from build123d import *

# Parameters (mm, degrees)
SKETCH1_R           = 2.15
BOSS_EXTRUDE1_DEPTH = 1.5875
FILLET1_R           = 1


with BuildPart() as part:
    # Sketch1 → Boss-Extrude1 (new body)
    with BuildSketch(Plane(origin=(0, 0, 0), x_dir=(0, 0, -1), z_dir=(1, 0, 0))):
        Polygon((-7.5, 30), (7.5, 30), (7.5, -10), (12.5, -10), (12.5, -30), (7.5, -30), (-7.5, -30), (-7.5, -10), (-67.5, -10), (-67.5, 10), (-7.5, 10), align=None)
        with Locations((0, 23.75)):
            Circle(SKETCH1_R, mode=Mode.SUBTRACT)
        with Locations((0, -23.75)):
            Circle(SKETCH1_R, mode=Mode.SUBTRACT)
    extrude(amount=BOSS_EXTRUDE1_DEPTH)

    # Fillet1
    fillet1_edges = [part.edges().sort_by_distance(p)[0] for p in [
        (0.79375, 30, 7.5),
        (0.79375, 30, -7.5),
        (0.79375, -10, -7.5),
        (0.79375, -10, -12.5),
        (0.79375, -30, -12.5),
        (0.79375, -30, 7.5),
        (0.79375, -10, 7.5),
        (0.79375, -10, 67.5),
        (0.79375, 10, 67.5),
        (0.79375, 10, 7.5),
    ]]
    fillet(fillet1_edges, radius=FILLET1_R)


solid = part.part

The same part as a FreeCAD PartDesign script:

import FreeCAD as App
import Part
import Sketcher

V = App.Vector


def edges_at(feature, points):
    """Names of the edges that pass closest to the given points."""
    edges = feature.Shape.Edges
    near = lambda p: min(range(len(edges)), key=lambda i: edges[i].distToShape(Part.Vertex(*p))[0])
    return sorted({f"Edge{near(p) + 1}" for p in points})

doc = App.newDocument("Part")
body = doc.addObject("PartDesign::Body", "Body")

# Sketch on YZ plane
sketch1 = body.newObject("Sketcher::SketchObject", "Sketch")
sketch1.AttachmentSupport = (doc.getObject("YZ_Plane"), [""])
sketch1.MapMode = "FlatFace"
sketch1.addGeometry(Part.LineSegment(V(30, -7.5, 0), V(30, 7.5, 0)), False)
sketch1.addGeometry(Part.LineSegment(V(30, 7.5, 0), V(10, 7.5, 0)), False)
sketch1.addGeometry(Part.LineSegment(V(10, 7.5, 0), V(10, 67.5, 0)), False)
sketch1.addGeometry(Part.LineSegment(V(10, 67.5, 0), V(-10, 67.5, 0)), False)
sketch1.addGeometry(Part.LineSegment(V(-10, 67.5, 0), V(-10, 7.5, 0)), False)
sketch1.addGeometry(Part.LineSegment(V(-10, 7.5, 0), V(-30, 7.5, 0)), False)
sketch1.addGeometry(Part.LineSegment(V(-30, 7.5, 0), V(-30, -12.5, 0)), False)
sketch1.addGeometry(Part.LineSegment(V(-30, -12.5, 0), V(-10, -12.5, 0)), False)
sketch1.addGeometry(Part.LineSegment(V(-10, -12.5, 0), V(-10, -7.5, 0)), False)
sketch1.addGeometry(Part.LineSegment(V(-10, -7.5, 0), V(30, -7.5, 0)), False)
sketch1.addGeometry(Part.Circle(V(-23.75, 0, 0), V(0, 0, 1), 2.15), False)
sketch1.addGeometry(Part.Circle(V(23.75, 0, 0), V(0, 0, 1), 2.15), False)
sketch1.addConstraint(Sketcher.Constraint("Coincident", 0, 2, 1, 1))
sketch1.addConstraint(Sketcher.Constraint("Coincident", 1, 2, 2, 1))
sketch1.addConstraint(Sketcher.Constraint("Coincident", 2, 2, 3, 1))
sketch1.addConstraint(Sketcher.Constraint("Coincident", 3, 2, 4, 1))
sketch1.addConstraint(Sketcher.Constraint("Coincident", 4, 2, 5, 1))
sketch1.addConstraint(Sketcher.Constraint("Coincident", 5, 2, 6, 1))
sketch1.addConstraint(Sketcher.Constraint("Coincident", 6, 2, 7, 1))
sketch1.addConstraint(Sketcher.Constraint("Coincident", 7, 2, 8, 1))
sketch1.addConstraint(Sketcher.Constraint("Coincident", 8, 2, 9, 1))
sketch1.addConstraint(Sketcher.Constraint("Coincident", 9, 2, 0, 1))
sketch1.addConstraint(Sketcher.Constraint("Vertical", 0))
sketch1.addConstraint(Sketcher.Constraint("Horizontal", 1))
sketch1.addConstraint(Sketcher.Constraint("Vertical", 2))
sketch1.addConstraint(Sketcher.Constraint("Horizontal", 3))
sketch1.addConstraint(Sketcher.Constraint("Vertical", 4))
sketch1.addConstraint(Sketcher.Constraint("Horizontal", 5))
sketch1.addConstraint(Sketcher.Constraint("Vertical", 6))
sketch1.addConstraint(Sketcher.Constraint("Horizontal", 7))
sketch1.addConstraint(Sketcher.Constraint("Vertical", 8))
sketch1.addConstraint(Sketcher.Constraint("Horizontal", 9))
sketch1.addConstraint(Sketcher.Constraint("Equal", 10, 11))
sketch1.addConstraint(Sketcher.Constraint("Symmetric", 10, 3, 11, 3, -1, 1))
sketch1.addConstraint(Sketcher.Constraint("Symmetric", 1, 2, 8, 2, -1, 1))
sketch1.addConstraint(Sketcher.Constraint("Symmetric", 5, 2, 9, 2, -1, 1))
sketch1.addConstraint(Sketcher.Constraint("PointOnObject", 10, 3, -1))
sketch1.addConstraint(Sketcher.Constraint("Vertical", 4, 2, 7, 2))
sketch1.addConstraint(Sketcher.Constraint("Equal", 1, 3))
sketch1.addConstraint(Sketcher.Constraint("Equal", 7, 6))
sketch1.addConstraint(Sketcher.Constraint("Diameter", 10, 4.3))
sketch1.addConstraint(Sketcher.Constraint("DistanceX", 1, 2, 1, 1, 20.0))
sketch1.addConstraint(Sketcher.Constraint("DistanceY", 0, 1, 0, 2, 15.0))
sketch1.addConstraint(Sketcher.Constraint("DistanceY", 2, 1, 2, 2, 60.0))
sketch1.addConstraint(Sketcher.Constraint("DistanceX", 10, 3, 11, 3, 47.5))
pad1 = body.newObject("PartDesign::Pad", "Pad")
pad1.Profile = sketch1
pad1.Length = 1.5875
doc.recompute()

fillet = body.newObject("PartDesign::Fillet", "Fillet")
fillet.Base = (pad1, edges_at(pad1, [
    (0.794, 30, 7.5),
    (0.794, 30, -7.5),
    (0.794, -10, -7.5),
    (0.794, -10, -12.5),
    (0.794, -30, -12.5),
    (0.794, -30, 7.5),
    (0.794, -10, 7.5),
    (0.794, -10, 67.5),
    (0.794, 10, 67.5),
    (0.794, 10, 7.5),
]))
fillet.Radius = 1

doc.recompute()
